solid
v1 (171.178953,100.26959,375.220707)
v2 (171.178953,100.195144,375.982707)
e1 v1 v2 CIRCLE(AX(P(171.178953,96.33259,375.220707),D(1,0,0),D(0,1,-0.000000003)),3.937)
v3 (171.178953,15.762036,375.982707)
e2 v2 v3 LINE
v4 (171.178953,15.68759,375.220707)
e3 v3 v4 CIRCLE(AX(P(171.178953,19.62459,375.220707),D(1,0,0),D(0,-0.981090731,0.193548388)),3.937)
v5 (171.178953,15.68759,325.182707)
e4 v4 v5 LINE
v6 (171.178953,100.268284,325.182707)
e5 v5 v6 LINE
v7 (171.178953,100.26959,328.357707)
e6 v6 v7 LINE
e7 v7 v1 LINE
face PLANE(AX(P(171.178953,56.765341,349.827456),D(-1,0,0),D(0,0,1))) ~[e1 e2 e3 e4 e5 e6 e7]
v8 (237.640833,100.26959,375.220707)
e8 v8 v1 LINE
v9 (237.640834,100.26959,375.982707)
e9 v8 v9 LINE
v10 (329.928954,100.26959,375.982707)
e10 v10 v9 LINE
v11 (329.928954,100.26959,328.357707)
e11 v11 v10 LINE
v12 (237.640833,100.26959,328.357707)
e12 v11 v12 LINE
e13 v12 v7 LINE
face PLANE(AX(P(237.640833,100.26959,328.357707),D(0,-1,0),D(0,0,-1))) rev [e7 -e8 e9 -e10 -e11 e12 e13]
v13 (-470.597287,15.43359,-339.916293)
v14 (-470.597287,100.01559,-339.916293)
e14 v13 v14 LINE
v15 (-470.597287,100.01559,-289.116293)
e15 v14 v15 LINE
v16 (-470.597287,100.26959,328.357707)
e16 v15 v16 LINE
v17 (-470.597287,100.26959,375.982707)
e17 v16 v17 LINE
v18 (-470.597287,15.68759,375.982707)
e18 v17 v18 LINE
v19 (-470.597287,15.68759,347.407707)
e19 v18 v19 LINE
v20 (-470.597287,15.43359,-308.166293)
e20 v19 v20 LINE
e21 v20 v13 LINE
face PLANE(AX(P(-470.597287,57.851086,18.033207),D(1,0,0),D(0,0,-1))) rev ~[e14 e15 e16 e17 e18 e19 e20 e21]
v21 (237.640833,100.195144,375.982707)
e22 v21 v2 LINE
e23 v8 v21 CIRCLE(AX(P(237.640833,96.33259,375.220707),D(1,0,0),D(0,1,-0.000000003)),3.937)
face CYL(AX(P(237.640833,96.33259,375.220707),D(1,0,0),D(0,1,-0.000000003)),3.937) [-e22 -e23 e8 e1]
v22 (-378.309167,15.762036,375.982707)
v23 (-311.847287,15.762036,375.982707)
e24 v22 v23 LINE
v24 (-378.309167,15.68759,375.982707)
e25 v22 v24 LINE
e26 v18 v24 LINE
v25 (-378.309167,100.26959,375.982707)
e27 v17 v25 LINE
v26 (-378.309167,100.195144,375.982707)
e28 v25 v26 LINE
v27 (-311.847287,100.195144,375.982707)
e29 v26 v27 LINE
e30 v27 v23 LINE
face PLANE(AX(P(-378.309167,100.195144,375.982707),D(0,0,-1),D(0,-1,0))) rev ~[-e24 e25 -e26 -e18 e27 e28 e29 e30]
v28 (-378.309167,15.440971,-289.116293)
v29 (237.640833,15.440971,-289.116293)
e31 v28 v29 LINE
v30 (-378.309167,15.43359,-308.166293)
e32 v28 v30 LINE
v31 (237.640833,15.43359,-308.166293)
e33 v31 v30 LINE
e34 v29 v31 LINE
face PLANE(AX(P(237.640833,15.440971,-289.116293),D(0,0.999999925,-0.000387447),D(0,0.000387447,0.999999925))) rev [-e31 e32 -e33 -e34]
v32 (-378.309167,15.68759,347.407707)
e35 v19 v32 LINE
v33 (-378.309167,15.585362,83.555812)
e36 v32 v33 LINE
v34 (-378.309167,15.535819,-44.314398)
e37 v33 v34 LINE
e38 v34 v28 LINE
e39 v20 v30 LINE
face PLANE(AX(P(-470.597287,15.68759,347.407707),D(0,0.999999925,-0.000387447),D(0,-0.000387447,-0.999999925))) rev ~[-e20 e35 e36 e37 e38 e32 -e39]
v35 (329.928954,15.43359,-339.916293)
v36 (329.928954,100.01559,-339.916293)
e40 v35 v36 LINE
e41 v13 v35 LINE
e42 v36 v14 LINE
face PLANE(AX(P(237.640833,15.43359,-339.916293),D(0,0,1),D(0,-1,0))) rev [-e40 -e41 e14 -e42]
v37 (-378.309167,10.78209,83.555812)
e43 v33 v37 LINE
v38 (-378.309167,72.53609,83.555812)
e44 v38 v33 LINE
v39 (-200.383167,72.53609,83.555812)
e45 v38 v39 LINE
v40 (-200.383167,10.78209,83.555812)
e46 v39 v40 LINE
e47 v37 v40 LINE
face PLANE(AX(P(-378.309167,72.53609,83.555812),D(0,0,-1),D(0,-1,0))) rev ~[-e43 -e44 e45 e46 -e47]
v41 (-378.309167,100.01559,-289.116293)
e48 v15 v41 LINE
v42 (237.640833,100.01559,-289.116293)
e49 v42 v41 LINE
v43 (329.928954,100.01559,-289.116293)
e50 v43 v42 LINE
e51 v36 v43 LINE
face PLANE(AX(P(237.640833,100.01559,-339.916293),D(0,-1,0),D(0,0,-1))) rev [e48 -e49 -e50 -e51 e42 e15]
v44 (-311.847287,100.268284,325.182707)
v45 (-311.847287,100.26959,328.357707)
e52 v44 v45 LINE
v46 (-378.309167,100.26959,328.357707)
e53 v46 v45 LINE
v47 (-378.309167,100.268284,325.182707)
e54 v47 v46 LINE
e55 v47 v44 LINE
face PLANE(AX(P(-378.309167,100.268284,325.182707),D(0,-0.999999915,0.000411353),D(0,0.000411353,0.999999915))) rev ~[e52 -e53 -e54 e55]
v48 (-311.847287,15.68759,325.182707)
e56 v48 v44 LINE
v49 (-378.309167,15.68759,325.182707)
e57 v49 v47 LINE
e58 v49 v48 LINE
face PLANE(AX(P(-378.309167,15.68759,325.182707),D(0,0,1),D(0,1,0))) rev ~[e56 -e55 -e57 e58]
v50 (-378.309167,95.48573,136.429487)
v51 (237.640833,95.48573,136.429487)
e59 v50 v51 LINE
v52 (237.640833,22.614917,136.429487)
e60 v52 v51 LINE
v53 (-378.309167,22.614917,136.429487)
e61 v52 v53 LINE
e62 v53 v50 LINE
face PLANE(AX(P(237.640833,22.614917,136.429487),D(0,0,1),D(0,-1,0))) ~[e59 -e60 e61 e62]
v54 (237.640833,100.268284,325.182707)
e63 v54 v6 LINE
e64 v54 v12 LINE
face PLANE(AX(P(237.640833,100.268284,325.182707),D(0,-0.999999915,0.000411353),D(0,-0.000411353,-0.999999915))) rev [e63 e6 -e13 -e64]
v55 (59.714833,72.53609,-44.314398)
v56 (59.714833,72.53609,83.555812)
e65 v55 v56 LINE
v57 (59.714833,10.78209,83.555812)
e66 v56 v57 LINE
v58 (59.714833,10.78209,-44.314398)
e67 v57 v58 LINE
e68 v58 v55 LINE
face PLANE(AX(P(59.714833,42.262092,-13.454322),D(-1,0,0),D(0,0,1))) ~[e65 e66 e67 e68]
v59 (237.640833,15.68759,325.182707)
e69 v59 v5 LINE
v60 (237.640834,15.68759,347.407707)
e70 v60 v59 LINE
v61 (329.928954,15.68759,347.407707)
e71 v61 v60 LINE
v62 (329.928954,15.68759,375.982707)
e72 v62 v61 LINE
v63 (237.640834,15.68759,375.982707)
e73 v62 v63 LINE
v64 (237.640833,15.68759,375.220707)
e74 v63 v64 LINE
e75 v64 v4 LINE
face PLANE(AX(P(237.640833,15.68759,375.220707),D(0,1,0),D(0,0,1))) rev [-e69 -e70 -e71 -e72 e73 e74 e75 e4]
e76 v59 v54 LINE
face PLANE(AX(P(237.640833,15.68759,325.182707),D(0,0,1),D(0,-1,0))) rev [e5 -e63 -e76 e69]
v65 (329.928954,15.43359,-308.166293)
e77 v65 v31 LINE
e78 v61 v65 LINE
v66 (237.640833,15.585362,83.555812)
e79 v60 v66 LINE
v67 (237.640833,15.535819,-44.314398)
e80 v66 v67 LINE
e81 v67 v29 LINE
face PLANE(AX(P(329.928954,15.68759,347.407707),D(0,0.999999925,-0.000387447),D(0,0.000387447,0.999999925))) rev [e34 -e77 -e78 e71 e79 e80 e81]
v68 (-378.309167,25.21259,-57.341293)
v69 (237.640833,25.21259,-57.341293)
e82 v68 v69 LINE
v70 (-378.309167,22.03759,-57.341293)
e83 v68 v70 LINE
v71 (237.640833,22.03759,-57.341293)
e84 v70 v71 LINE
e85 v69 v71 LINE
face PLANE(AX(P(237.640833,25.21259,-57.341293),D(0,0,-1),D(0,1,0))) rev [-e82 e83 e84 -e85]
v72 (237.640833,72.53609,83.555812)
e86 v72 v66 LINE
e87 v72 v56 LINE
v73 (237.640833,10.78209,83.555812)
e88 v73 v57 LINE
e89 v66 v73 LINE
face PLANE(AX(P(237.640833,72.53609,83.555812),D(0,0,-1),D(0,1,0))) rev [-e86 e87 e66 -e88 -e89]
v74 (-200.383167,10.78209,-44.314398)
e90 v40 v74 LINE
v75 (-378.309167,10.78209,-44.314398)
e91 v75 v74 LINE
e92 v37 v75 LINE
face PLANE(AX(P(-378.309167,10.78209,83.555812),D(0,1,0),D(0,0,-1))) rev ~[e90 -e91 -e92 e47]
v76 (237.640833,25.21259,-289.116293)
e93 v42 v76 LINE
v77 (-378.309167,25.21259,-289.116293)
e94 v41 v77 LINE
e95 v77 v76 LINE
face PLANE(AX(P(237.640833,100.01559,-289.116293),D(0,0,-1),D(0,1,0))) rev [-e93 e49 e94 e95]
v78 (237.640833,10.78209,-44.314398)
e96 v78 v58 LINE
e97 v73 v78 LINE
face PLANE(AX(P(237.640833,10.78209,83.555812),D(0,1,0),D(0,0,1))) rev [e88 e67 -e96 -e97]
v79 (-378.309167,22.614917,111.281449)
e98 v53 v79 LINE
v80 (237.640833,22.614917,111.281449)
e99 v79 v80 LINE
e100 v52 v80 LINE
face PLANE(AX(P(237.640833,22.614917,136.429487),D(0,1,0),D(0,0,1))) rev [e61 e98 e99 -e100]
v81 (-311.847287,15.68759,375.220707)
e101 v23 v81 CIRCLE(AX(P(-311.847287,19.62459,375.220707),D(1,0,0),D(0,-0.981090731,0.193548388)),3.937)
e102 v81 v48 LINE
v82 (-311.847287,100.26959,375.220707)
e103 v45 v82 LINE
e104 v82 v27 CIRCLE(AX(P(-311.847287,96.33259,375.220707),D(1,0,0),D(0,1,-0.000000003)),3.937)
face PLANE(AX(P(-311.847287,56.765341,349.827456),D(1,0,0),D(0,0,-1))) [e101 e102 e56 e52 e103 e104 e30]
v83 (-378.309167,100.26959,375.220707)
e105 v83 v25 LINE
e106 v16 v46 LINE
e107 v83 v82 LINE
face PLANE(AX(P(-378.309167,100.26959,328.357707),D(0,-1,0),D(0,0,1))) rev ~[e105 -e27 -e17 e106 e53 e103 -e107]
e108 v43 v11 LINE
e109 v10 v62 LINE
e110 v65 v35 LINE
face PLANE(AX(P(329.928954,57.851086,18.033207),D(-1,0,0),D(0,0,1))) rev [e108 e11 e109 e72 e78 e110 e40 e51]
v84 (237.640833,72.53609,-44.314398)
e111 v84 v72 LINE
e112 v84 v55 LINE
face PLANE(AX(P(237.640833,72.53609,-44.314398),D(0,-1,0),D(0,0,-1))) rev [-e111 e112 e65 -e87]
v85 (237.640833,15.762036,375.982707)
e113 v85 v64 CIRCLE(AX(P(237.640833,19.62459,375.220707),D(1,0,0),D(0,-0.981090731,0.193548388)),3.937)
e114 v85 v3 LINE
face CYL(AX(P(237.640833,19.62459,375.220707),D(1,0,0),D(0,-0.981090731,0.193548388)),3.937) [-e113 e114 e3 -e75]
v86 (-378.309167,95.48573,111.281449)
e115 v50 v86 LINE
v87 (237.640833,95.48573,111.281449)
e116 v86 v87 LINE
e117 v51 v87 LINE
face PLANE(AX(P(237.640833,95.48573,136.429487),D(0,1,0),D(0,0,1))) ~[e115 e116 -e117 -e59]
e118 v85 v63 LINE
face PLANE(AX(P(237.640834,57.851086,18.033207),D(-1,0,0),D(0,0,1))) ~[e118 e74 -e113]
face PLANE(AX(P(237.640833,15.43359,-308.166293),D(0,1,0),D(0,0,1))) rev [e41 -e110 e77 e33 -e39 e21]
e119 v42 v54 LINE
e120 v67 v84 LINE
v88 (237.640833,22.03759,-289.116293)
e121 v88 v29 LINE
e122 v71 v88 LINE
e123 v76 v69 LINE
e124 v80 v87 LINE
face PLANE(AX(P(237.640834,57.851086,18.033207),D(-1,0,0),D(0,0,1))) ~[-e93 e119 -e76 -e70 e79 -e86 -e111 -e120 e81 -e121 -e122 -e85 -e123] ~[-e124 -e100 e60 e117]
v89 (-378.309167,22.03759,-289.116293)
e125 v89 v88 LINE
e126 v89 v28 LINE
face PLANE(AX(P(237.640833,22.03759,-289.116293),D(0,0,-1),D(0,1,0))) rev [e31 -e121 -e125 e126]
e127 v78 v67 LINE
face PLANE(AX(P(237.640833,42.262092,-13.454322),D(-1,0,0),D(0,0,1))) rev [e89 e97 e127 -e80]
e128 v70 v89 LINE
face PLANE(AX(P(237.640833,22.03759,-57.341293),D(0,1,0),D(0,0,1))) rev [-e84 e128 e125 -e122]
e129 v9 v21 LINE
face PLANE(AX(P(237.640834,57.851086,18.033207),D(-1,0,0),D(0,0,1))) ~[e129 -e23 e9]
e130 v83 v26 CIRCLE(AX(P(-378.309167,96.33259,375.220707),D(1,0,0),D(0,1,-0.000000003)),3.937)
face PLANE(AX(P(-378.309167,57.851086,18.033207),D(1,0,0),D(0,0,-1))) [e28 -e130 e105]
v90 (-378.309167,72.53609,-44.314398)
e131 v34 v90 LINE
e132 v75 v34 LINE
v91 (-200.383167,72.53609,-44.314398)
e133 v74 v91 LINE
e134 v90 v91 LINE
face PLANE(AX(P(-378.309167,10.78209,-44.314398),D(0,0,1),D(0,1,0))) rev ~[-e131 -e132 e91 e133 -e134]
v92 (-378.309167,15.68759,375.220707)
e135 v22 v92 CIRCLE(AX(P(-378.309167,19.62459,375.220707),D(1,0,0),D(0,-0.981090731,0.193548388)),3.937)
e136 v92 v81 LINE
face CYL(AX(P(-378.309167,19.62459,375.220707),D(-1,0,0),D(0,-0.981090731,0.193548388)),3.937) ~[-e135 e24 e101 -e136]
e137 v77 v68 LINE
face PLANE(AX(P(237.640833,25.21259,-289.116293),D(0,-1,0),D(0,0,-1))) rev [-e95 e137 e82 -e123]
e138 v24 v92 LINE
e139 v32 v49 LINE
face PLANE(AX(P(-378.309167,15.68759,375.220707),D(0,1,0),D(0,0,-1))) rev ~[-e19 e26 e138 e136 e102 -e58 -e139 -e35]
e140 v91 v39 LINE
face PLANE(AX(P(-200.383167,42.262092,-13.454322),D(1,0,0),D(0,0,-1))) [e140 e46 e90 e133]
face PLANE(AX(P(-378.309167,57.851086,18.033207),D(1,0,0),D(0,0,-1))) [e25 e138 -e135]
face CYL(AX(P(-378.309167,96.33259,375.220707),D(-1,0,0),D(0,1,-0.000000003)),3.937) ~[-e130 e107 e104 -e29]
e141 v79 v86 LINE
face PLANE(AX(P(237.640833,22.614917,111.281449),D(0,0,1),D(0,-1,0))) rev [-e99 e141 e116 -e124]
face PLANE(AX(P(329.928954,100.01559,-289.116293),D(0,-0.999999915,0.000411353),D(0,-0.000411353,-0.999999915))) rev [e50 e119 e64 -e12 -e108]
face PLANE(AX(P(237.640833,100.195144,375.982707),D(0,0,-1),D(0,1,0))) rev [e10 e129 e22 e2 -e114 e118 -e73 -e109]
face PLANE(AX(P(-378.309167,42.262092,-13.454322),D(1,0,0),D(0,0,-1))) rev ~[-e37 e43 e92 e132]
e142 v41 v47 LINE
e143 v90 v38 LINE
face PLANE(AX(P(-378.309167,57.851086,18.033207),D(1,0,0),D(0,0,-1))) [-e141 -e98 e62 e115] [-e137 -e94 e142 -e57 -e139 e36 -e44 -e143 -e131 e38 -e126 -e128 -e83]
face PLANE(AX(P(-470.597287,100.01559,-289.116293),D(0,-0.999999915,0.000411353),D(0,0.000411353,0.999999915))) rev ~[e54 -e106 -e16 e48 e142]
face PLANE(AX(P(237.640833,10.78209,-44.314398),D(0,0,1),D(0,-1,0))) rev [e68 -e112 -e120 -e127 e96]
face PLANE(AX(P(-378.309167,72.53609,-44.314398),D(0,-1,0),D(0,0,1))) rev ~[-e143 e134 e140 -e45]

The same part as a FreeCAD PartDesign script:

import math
import FreeCAD as App
import Part
import Sketcher

V = App.Vector
Q = App.Units.Quantity

doc = App.newDocument("Part")
body = doc.addObject("PartDesign::Body", "Body")

# Sketch on YZ plane
sketch1 = body.newObject("Sketcher::SketchObject", "Sketch")
sketch1.AttachmentSupport = (doc.getObject("YZ_Plane"), [""])
sketch1.MapMode = "FlatFace"
sketch1.AttachmentOffset = App.Placement(V(0, 0, -470.597287), App.Rotation())
sketch1.addGeometry(Part.LineSegment(V(16, 376, 0), V(100, 376, 0)), False)
sketch1.addGeometry(Part.LineSegment(V(100, 376, 0), V(100, 328, 0)), False)
sketch1.addGeometry(Part.LineSegment(V(100, 328, 0), V(100, -289, 0)), False)
sketch1.addGeometry(Part.LineSegment(V(100, -289, 0), V(100, -340, 0)), False)
sketch1.addGeometry(Part.LineSegment(V(100, -340, 0), V(15, -340, 0)), False)
sketch1.addGeometry(Part.LineSegment(V(15, -340, 0), V(15, -308, 0)), False)
sketch1.addGeometry(Part.LineSegment(V(15, -308, 0), V(16, 347, 0)), False)
sketch1.addGeometry(Part.LineSegment(V(16, 347, 0), V(16, 376, 0)), False)
sketch1.addConstraint(Sketcher.Constraint("Coincident", 0, 2, 1, 1))
sketch1.addConstraint(Sketcher.Constraint("Coincident", 1, 2, 2, 1))
sketch1.addConstraint(Sketcher.Constraint("Coincident", 2, 2, 3, 1))
sketch1.addConstraint(Sketcher.Constraint("Coincident", 3, 2, 4, 1))
sketch1.addConstraint(Sketcher.Constraint("Coincident", 4, 2, 5, 1))
sketch1.addConstraint(Sketcher.Constraint("Coincident", 5, 2, 6, 1))
sketch1.addConstraint(Sketcher.Constraint("Coincident", 6, 2, 7, 1))
sketch1.addConstraint(Sketcher.Constraint("Coincident", 7, 2, 0, 1))
sketch1.addConstraint(Sketcher.Constraint("Horizontal", 0))
sketch1.addConstraint(Sketcher.Constraint("Vertical", 1))
sketch1.addConstraint(Sketcher.Constraint("Vertical", 3))
sketch1.addConstraint(Sketcher.Constraint("Horizontal", 4))
sketch1.addConstraint(Sketcher.Constraint("Vertical", 5))
sketch1.addConstraint(Sketcher.Constraint("Vertical", 7))
sketch1.addConstraint(Sketcher.Constraint("Equal", 0, 4))
sketch1.addConstraint(Sketcher.Constraint("DistanceY", 3, 2, 3, 1, Q("2 in")))
sketch1.addConstraint(Sketcher.Constraint("DistanceX", 0, 1, 0, 2, Q("3.33 in")))
sketch1.addConstraint(Sketcher.Constraint("DistanceY", 5, 1, 5, 2, Q("1.25 in")))
sketch1.addConstraint(Sketcher.Constraint("DistanceY", 1, 2, 1, 1, Q("1.875 in")))
sketch1.addConstraint(Sketcher.Constraint("DistanceY", 7, 1, 7, 2, Q("1.125 in")))
sketch1.addConstraint(Sketcher.Constraint("DistanceX", 2, 2, 1, 2, Q("0.01 in")))
sketch1.addConstraint(Sketcher.Constraint("DistanceY", 2, 2, 1, 2, Q("24.31 in")))
sketch1.addConstraint(Sketcher.Constraint("DistanceX", -1, 1, 0, 2, 100.26959))
sketch1.addConstraint(Sketcher.Constraint("DistanceY", -1, 1, 0, 2, 375.982707))
pad1 = body.newObject("PartDesign::Pad", "Pad")
pad1.Profile = sketch1
pad1.Length = 92.28812

# Sketch on YZ plane
sketch2 = body.newObject("Sketcher::SketchObject", "Sketch001")
sketch2.AttachmentSupport = (doc.getObject("YZ_Plane"), [""])
sketch2.MapMode = "FlatFace"
sketch2.AttachmentOffset = App.Placement(V(0, 0, -378.309167), App.Rotation())
sketch2.addGeometry(Part.LineSegment(V(15.7, 325.2, 0), V(100.3, 325.2, 0)), False)
sketch2.addGeometry(Part.LineSegment(V(100.3, 325.2, 0), V(100.3, 328.4, 0)), False)
sketch2.addGeometry(Part.LineSegment(V(100.3, 328.4, 0), V(100.3, 375.2, 0)), False)
sketch2.addGeometry(Part.ArcOfCircle(Part.Circle(V(96.3, 375.2, 0), V(0, 0, 1), 3.9), math.radians(0), math.radians(11.16)), False)
sketch2.addGeometry(Part.LineSegment(V(100.2, 376, 0), V(15.8, 376, 0)), False)
sketch2.addGeometry(Part.ArcOfCircle(Part.Circle(V(19.6, 375.2, 0), V(0, 0, 1), 3.9), math.radians(168.84), math.radians(180)), False)
sketch2.addGeometry(Part.LineSegment(V(15.7, 375.2, 0), V(15.7, 325.2, 0)), False)
sketch2.addConstraint(Sketcher.Constraint("Coincident", 0, 2, 1, 1))
sketch2.addConstraint(Sketcher.Constraint("Coincident", 1, 2, 2, 1))
sketch2.addConstraint(Sketcher.Constraint("Tangent", 2, 2, 3, 1))
sketch2.addConstraint(Sketcher.Constraint("Coincident", 3, 2, 4, 1))
sketch2.addConstraint(Sketcher.Constraint("Coincident", 4, 2, 5, 1))
sketch2.addConstraint(Sketcher.Constraint("Tangent", 5, 2, 6, 1))
sketch2.addConstraint(Sketcher.Constraint("Coincident", 6, 2, 0, 1))
sketch2.addConstraint(Sketcher.Constraint("Horizontal", 0))
sketch2.addConstraint(Sketcher.Constraint("Vertical", 2))
sketch2.addConstraint(Sketcher.Constraint("Horizontal", 4))
sketch2.addConstraint(Sketcher.Constraint("Vertical", 6))
sketch2.addConstraint(Sketcher.Constraint("Equal", 3, 5))
sketch2.addConstraint(Sketcher.Constraint("Horizontal", 3, 3, 5, 3))
sketch2.addConstraint(Sketcher.Constraint("Radius", 3, Q("0.155 in")))
sketch2.addConstraint(Sketcher.Constraint("DistanceY", 0, 2, 3, 2, Q("2 in")))
sketch2.addConstraint(Sketcher.Constraint("DistanceY", 6, 2, 6, 1, Q("1.97 in")))
sketch2.addConstraint(Sketcher.Constraint("DistanceY", 2, 1, 2, 2, Q("1.845 in")))
sketch2.addConstraint(Sketcher.Constraint("DistanceX", 5, 3, 3, 3, Q("3.02 in")))
sketch2.addConstraint(Sketcher.Constraint("DistanceX", 0, 1, 0, 2, 84.580694))
sketch2.addConstraint(Sketcher.Constraint("DistanceX", -1, 1, 3, 3, 96.33259))
sketch2.addConstraint(Sketcher.Constraint("DistanceY", -1, 1, 3, 3, 375.220707))
pad2 = body.newObject("PartDesign::Pad", "Pad001")
pad2.Profile = sketch2
pad2.Length = 66.46188

# Sketch on YZ plane
sketch3 = body.newObject("Sketcher::SketchObject", "Sketch002")
sketch3.AttachmentSupport = (doc.getObject("YZ_Plane"), [""])
sketch3.MapMode = "FlatFace"
sketch3.AttachmentOffset = App.Placement(V(0, 0, -378.309167), App.Rotation())
sketch3.addGeometry(Part.LineSegment(V(100, -289.1, 0), V(25.2, -289.1, 0)), False)
sketch3.addGeometry(Part.LineSegment(V(25.2, -289.1, 0), V(25.2, -57.3, 0)), False)
sketch3.addGeometry(Part.LineSegment(V(25.2, -57.3, 0), V(22, -57.3, 0)), False)
sketch3.addGeometry(Part.LineSegment(V(22, -57.3, 0), V(22, -289.1, 0)), False)
sketch3.addGeometry(Part.LineSegment(V(22, -289.1, 0), V(15.4, -289.1, 0)), False)
sketch3.addGeometry(Part.LineSegment(V(15.4, -289.1, 0), V(15.4, -308.2, 0)), False)
sketch3.addGeometry(Part.LineSegment(V(15.4, -308.2, 0), V(15.4, -339.9, 0)), False)
sketch3.addGeometry(Part.LineSegment(V(15.4, -339.9, 0), V(100, -339.9, 0)), False)
sketch3.addGeometry(Part.LineSegment(V(100, -339.9, 0), V(100, -289.1, 0)), False)
sketch3.addConstraint(Sketcher.Constraint("Coincident", 0, 2, 1, 1))
sketch3.addConstraint(Sketcher.Constraint("Coincident", 1, 2, 2, 1))
sketch3.addConstraint(Sketcher.Constraint("Coincident", 2, 2, 3, 1))
sketch3.addConstraint(Sketcher.Constraint("Coincident", 3, 2, 4, 1))
sketch3.addConstraint(Sketcher.Constraint("Coincident", 4, 2, 5, 1))
sketch3.addConstraint(Sketcher.Constraint("Coincident", 5, 2, 6, 1))
sketch3.addConstraint(Sketcher.Constraint("Coincident", 6, 2, 7, 1))
sketch3.addConstraint(Sketcher.Constraint("Coincident", 7, 2, 8, 1))
sketch3.addConstraint(Sketcher.Constraint("Coincident", 8, 2, 0, 1))
sketch3.addConstraint(Sketcher.Constraint("Horizontal", 0))
sketch3.addConstraint(Sketcher.Constraint("Vertical", 1))
sketch3.addConstraint(Sketcher.Constraint("Horizontal", 2))
sketch3.addConstraint(Sketcher.Constraint("Vertical", 3))
sketch3.addConstraint(Sketcher.Constraint("Horizontal", 4))
sketch3.addConstraint(Sketcher.Constraint("Vertical", 6))
sketch3.addConstraint(Sketcher.Constraint("Horizontal", 7))
sketch3.addConstraint(Sketcher.Constraint("Vertical", 8))
sketch3.addConstraint(Sketcher.Constraint("Horizontal", 0, 2, 3, 2))
sketch3.addConstraint(Sketcher.Constraint("DistanceY", 8, 1, 8, 2, Q("2 in")))
sketch3.addConstraint(Sketcher.Constraint("DistanceX", 7, 1, 7, 2, Q("3.33 in")))
sketch3.addConstraint(Sketcher.Constraint("DistanceY", 6, 2, 6, 1, Q("1.25 in")))
sketch3.addConstraint(Sketcher.Constraint("DistanceX", 0, 2, 0, 1, Q("2.945 in")))
sketch3.addConstraint(Sketcher.Constraint("DistanceX", 2, 2, 2, 1, Q("0.125 in")))
sketch3.addConstraint(Sketcher.Constraint("DistanceY", 1, 1, 1, 2, Q("9.125 in")))
sketch3.addConstraint(Sketcher.Constraint("DistanceX", 4, 2, 4, 1, 6.596619))
sketch3.addConstraint(Sketcher.Constraint("DistanceX", -1, 1, 0, 2, 25.21259))
sketch3.addConstraint(Sketcher.Constraint("DistanceY", 0, 2, -1, 1, 289.116293))
pad3 = body.newObject("PartDesign::Pad", "Pad002")
pad3.Profile = sketch3
pad3.Length = Q("12.125 in")

# Sketch on YZ plane
sketch4 = body.newObject("Sketcher::SketchObject", "Sketch003")
sketch4.AttachmentSupport = (doc.getObject("YZ_Plane"), [""])
sketch4.MapMode = "FlatFace"
sketch4.AttachmentOffset = App.Placement(V(0, 0, -378.309167), App.Rotation())
sketch4.addGeometry(Part.LineSegment(V(73, 84, 0), V(11, 84, 0)), False)
sketch4.addGeometry(Part.LineSegment(V(11, 84, 0), V(11, -44, 0)), False)
sketch4.addGeometry(Part.LineSegment(V(11, -44, 0), V(73, -44, 0)), False)
sketch4.addGeometry(Part.LineSegment(V(73, -44, 0), V(73, 84, 0)), False)
sketch4.addConstraint(Sketcher.Constraint("Coincident", 0, 2, 1, 1))
sketch4.addConstraint(Sketcher.Constraint("Coincident", 1, 2, 2, 1))
sketch4.addConstraint(Sketcher.Constraint("Coincident", 2, 2, 3, 1))
sketch4.addConstraint(Sketcher.Constraint("Coincident", 3, 2, 0, 1))
sketch4.addConstraint(Sketcher.Constraint("Horizontal", 0))
sketch4.addConstraint(Sketcher.Constraint("Vertical", 1))
sketch4.addConstraint(Sketcher.Constraint("Horizontal", 2))
sketch4.addConstraint(Sketcher.Constraint("Vertical", 3))
sketch4.addConstraint(Sketcher.Constraint("DistanceX", 0, 2, 0, 1, 61.754))
sketch4.addConstraint(Sketcher.Constraint("DistanceY", 1, 2, 1, 1, 127.87021))
sketch4.addConstraint(Sketcher.Constraint("DistanceX", -1, 1, 0, 2, 10.78209))
sketch4.addConstraint(Sketcher.Constraint("DistanceY", -1, 1, 0, 2, 83.555812))
pad4 = body.newObject("PartDesign::Pad", "Pad003")
pad4.Profile = sketch4
pad4.Length = 177.926

# Sketch on YZ plane
sketch5 = body.newObject("Sketcher::SketchObject", "Sketch004")
sketch5.AttachmentSupport = (doc.getObject("YZ_Plane"), [""])
sketch5.MapMode = "FlatFace"
sketch5.AttachmentOffset = App.Placement(V(0, 0, -378.309167), App.Rotation())
sketch5.addGeometry(Part.LineSegment(V(95, 136, 0), V(23, 136, 0)), False)
sketch5.addGeometry(Part.LineSegment(V(23, 136, 0), V(23, 111, 0)), False)
sketch5.addGeometry(Part.LineSegment(V(23, 111, 0), V(95, 111, 0)), False)
sketch5.addGeometry(Part.LineSegment(V(95, 111, 0), V(95, 136, 0)), False)
sketch5.addConstraint(Sketcher.Constraint("Coincident", 0, 2, 1, 1))
sketch5.addConstraint(Sketcher.Constraint("Coincident", 1, 2, 2, 1))
sketch5.addConstraint(Sketcher.Constraint("Coincident", 2, 2, 3, 1))
sketch5.addConstraint(Sketcher.Constraint("Coincident", 3, 2, 0, 1))
sketch5.addConstraint(Sketcher.Constraint("Horizontal", 0))
sketch5.addConstraint(Sketcher.Constraint("Vertical", 1))
sketch5.addConstraint(Sketcher.Constraint("Horizontal", 2))
sketch5.addConstraint(Sketcher.Constraint("Vertical", 3))
sketch5.addConstraint(Sketcher.Constraint("DistanceY", 1, 2, 1, 1, 25.148039))
sketch5.addConstraint(Sketcher.Constraint("DistanceX", 0, 2, 0, 1, 72.870812))
sketch5.addConstraint(Sketcher.Constraint("DistanceY", -1, 1, 1, 2, 111.281449))
sketch5.addConstraint(Sketcher.Constraint("DistanceX", -1, 1, 2, 2, 95.48573))
pad5 = body.newObject("PartDesign::Pad", "Pad004")
pad5.Profile = sketch5
pad5.Length = Q("12.125 in")
body2 = doc.addObject("PartDesign::Body", "Body001")
doc.recompute()

body2.BaseFeature = body
doc.recompute()

mirroring = doc.addObject("Part::Mirroring", "Mirroring")
mirroring.Source = body
mirroring.Base = V(-70.334167, 0, 0)
mirroring.Normal = V(1, 0, 0)
body3 = doc.addObject("PartDesign::Body", "Body002")
body3.BaseFeature = mirroring
boolean = body2.newObject("PartDesign::Boolean", "Boolean")
boolean.Type = "Fuse"
boolean.addObjects([body3])
doc.recompute()
mirroring.Visibility = False

doc.recompute()
